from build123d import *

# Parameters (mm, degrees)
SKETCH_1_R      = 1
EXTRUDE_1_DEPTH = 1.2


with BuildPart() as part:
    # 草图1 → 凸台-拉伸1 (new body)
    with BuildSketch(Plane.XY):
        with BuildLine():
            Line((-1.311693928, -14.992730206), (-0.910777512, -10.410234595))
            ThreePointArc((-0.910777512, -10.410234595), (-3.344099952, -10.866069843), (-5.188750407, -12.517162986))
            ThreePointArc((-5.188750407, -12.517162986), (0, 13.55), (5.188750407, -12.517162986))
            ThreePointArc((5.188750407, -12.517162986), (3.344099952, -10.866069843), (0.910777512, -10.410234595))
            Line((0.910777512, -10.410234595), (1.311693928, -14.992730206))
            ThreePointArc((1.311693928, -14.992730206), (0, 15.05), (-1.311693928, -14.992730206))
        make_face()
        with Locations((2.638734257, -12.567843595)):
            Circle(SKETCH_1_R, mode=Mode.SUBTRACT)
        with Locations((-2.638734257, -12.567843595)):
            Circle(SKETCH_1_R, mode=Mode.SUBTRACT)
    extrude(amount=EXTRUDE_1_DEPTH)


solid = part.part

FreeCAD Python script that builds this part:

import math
import FreeCAD as App
import Part
import Sketcher
Q = App.Units.Quantity

doc = App.newDocument("Part")
body = doc.addObject("PartDesign::Body", "Body")

# Sketch on XY plane
sketch1 = doc.addObject("Sketcher::SketchObject", "Sketch")
body.addObject(sketch1)
sketch1.AttachmentSupport = (doc.XY_Plane, [""])
sketch1.MapMode = "FlatFace"
sketch1.addGeometry([
    Part.LineSegment(App.Vector(-1.3, -15, 0), App.Vector(-0.9, -10.4, 0)),  # 0
    Part.ArcOfCircle(Part.Circle(App.Vector(-1.3, -15, 0), App.Vector(0, 0, 1), 4.6), math.radians(85), math.radians(147)),  # 1
    Part.ArcOfCircle(Part.Circle(App.Vector(0, 0, 0), App.Vector(0, 0, 1), 13.6), math.radians(-67), math.radians(247)),  # 2
    Part.ArcOfCircle(Part.Circle(App.Vector(1.3, -15, 0), App.Vector(0, 0, 1), 4.6), math.radians(33), math.radians(95)),  # 3
    Part.LineSegment(App.Vector(0.9, -10.4, 0), App.Vector(1.3, -15, 0)),  # 4
    Part.ArcOfCircle(Part.Circle(App.Vector(0, 0, 0), App.Vector(0, 0, 1), 15.1), math.radians(-85), math.radians(265)),  # 5
    Part.Circle(App.Vector(-2.6, -12.6, 0), App.Vector(0, 0, 1), 1),  # 6
    Part.Circle(App.Vector(2.6, -12.6, 0), App.Vector(0, 0, 1), 1),  # 7
], False)
sketch1.addConstraint([
    Sketcher.Constraint("Coincident", 0, 2, 1, 1),
    Sketcher.Constraint("Coincident", 1, 2, 2, 2),
    Sketcher.Constraint("Coincident", 2, 1, 3, 1),
    Sketcher.Constraint("Coincident", 3, 2, 4, 1),
    Sketcher.Constraint("Coincident", 4, 2, 5, 1),
    Sketcher.Constraint("Coincident", 5, 2, 0, 1),
    Sketcher.Constraint("Coincident", 2, 3, -1, 1),
    Sketcher.Constraint("Coincident", 5, 3, -1, 1),
    Sketcher.Constraint("Coincident", 4, 2, 3, 3),
    Sketcher.Constraint("Coincident", 5, 2, 1, 3),
    Sketcher.Constraint("Equal", 1, 3),
    Sketcher.Constraint("Equal", 6, 7),
    Sketcher.Constraint("Symmetric", 6, 3, 7, 3, -2),
    Sketcher.Constraint("Horizontal", 1, 3, 3, 3),
    Sketcher.Constraint("Horizontal", 0, 2, 3, 2),
    Sketcher.Constraint("Diameter", 6, Q("2 mm")),
    Sketcher.Constraint("Radius", 1, Q("4.6 mm")),
    Sketcher.Constraint("Angle", 0, Q("85 deg")),
    Sketcher.Constraint("Radius", 2, Q("13.55 mm")),
    Sketcher.Constraint("Radius", 5, Q("15.05 mm")),
    Sketcher.Constraint("DistanceY", 1, 3, -1, 1, Q("14.99273 mm")),
    Sketcher.Constraint("DistanceX", 6, 3, 1, 3, Q("1.32704 mm")),
    Sketcher.Constraint("DistanceY", 6, 3, 0, 2, Q("2.157609 mm")),
])
pad1 = doc.addObject("PartDesign::Pad", "Pad")
body.addObject(pad1)
pad1.Profile = sketch1
pad1.Length = 1.2

doc.recompute()
